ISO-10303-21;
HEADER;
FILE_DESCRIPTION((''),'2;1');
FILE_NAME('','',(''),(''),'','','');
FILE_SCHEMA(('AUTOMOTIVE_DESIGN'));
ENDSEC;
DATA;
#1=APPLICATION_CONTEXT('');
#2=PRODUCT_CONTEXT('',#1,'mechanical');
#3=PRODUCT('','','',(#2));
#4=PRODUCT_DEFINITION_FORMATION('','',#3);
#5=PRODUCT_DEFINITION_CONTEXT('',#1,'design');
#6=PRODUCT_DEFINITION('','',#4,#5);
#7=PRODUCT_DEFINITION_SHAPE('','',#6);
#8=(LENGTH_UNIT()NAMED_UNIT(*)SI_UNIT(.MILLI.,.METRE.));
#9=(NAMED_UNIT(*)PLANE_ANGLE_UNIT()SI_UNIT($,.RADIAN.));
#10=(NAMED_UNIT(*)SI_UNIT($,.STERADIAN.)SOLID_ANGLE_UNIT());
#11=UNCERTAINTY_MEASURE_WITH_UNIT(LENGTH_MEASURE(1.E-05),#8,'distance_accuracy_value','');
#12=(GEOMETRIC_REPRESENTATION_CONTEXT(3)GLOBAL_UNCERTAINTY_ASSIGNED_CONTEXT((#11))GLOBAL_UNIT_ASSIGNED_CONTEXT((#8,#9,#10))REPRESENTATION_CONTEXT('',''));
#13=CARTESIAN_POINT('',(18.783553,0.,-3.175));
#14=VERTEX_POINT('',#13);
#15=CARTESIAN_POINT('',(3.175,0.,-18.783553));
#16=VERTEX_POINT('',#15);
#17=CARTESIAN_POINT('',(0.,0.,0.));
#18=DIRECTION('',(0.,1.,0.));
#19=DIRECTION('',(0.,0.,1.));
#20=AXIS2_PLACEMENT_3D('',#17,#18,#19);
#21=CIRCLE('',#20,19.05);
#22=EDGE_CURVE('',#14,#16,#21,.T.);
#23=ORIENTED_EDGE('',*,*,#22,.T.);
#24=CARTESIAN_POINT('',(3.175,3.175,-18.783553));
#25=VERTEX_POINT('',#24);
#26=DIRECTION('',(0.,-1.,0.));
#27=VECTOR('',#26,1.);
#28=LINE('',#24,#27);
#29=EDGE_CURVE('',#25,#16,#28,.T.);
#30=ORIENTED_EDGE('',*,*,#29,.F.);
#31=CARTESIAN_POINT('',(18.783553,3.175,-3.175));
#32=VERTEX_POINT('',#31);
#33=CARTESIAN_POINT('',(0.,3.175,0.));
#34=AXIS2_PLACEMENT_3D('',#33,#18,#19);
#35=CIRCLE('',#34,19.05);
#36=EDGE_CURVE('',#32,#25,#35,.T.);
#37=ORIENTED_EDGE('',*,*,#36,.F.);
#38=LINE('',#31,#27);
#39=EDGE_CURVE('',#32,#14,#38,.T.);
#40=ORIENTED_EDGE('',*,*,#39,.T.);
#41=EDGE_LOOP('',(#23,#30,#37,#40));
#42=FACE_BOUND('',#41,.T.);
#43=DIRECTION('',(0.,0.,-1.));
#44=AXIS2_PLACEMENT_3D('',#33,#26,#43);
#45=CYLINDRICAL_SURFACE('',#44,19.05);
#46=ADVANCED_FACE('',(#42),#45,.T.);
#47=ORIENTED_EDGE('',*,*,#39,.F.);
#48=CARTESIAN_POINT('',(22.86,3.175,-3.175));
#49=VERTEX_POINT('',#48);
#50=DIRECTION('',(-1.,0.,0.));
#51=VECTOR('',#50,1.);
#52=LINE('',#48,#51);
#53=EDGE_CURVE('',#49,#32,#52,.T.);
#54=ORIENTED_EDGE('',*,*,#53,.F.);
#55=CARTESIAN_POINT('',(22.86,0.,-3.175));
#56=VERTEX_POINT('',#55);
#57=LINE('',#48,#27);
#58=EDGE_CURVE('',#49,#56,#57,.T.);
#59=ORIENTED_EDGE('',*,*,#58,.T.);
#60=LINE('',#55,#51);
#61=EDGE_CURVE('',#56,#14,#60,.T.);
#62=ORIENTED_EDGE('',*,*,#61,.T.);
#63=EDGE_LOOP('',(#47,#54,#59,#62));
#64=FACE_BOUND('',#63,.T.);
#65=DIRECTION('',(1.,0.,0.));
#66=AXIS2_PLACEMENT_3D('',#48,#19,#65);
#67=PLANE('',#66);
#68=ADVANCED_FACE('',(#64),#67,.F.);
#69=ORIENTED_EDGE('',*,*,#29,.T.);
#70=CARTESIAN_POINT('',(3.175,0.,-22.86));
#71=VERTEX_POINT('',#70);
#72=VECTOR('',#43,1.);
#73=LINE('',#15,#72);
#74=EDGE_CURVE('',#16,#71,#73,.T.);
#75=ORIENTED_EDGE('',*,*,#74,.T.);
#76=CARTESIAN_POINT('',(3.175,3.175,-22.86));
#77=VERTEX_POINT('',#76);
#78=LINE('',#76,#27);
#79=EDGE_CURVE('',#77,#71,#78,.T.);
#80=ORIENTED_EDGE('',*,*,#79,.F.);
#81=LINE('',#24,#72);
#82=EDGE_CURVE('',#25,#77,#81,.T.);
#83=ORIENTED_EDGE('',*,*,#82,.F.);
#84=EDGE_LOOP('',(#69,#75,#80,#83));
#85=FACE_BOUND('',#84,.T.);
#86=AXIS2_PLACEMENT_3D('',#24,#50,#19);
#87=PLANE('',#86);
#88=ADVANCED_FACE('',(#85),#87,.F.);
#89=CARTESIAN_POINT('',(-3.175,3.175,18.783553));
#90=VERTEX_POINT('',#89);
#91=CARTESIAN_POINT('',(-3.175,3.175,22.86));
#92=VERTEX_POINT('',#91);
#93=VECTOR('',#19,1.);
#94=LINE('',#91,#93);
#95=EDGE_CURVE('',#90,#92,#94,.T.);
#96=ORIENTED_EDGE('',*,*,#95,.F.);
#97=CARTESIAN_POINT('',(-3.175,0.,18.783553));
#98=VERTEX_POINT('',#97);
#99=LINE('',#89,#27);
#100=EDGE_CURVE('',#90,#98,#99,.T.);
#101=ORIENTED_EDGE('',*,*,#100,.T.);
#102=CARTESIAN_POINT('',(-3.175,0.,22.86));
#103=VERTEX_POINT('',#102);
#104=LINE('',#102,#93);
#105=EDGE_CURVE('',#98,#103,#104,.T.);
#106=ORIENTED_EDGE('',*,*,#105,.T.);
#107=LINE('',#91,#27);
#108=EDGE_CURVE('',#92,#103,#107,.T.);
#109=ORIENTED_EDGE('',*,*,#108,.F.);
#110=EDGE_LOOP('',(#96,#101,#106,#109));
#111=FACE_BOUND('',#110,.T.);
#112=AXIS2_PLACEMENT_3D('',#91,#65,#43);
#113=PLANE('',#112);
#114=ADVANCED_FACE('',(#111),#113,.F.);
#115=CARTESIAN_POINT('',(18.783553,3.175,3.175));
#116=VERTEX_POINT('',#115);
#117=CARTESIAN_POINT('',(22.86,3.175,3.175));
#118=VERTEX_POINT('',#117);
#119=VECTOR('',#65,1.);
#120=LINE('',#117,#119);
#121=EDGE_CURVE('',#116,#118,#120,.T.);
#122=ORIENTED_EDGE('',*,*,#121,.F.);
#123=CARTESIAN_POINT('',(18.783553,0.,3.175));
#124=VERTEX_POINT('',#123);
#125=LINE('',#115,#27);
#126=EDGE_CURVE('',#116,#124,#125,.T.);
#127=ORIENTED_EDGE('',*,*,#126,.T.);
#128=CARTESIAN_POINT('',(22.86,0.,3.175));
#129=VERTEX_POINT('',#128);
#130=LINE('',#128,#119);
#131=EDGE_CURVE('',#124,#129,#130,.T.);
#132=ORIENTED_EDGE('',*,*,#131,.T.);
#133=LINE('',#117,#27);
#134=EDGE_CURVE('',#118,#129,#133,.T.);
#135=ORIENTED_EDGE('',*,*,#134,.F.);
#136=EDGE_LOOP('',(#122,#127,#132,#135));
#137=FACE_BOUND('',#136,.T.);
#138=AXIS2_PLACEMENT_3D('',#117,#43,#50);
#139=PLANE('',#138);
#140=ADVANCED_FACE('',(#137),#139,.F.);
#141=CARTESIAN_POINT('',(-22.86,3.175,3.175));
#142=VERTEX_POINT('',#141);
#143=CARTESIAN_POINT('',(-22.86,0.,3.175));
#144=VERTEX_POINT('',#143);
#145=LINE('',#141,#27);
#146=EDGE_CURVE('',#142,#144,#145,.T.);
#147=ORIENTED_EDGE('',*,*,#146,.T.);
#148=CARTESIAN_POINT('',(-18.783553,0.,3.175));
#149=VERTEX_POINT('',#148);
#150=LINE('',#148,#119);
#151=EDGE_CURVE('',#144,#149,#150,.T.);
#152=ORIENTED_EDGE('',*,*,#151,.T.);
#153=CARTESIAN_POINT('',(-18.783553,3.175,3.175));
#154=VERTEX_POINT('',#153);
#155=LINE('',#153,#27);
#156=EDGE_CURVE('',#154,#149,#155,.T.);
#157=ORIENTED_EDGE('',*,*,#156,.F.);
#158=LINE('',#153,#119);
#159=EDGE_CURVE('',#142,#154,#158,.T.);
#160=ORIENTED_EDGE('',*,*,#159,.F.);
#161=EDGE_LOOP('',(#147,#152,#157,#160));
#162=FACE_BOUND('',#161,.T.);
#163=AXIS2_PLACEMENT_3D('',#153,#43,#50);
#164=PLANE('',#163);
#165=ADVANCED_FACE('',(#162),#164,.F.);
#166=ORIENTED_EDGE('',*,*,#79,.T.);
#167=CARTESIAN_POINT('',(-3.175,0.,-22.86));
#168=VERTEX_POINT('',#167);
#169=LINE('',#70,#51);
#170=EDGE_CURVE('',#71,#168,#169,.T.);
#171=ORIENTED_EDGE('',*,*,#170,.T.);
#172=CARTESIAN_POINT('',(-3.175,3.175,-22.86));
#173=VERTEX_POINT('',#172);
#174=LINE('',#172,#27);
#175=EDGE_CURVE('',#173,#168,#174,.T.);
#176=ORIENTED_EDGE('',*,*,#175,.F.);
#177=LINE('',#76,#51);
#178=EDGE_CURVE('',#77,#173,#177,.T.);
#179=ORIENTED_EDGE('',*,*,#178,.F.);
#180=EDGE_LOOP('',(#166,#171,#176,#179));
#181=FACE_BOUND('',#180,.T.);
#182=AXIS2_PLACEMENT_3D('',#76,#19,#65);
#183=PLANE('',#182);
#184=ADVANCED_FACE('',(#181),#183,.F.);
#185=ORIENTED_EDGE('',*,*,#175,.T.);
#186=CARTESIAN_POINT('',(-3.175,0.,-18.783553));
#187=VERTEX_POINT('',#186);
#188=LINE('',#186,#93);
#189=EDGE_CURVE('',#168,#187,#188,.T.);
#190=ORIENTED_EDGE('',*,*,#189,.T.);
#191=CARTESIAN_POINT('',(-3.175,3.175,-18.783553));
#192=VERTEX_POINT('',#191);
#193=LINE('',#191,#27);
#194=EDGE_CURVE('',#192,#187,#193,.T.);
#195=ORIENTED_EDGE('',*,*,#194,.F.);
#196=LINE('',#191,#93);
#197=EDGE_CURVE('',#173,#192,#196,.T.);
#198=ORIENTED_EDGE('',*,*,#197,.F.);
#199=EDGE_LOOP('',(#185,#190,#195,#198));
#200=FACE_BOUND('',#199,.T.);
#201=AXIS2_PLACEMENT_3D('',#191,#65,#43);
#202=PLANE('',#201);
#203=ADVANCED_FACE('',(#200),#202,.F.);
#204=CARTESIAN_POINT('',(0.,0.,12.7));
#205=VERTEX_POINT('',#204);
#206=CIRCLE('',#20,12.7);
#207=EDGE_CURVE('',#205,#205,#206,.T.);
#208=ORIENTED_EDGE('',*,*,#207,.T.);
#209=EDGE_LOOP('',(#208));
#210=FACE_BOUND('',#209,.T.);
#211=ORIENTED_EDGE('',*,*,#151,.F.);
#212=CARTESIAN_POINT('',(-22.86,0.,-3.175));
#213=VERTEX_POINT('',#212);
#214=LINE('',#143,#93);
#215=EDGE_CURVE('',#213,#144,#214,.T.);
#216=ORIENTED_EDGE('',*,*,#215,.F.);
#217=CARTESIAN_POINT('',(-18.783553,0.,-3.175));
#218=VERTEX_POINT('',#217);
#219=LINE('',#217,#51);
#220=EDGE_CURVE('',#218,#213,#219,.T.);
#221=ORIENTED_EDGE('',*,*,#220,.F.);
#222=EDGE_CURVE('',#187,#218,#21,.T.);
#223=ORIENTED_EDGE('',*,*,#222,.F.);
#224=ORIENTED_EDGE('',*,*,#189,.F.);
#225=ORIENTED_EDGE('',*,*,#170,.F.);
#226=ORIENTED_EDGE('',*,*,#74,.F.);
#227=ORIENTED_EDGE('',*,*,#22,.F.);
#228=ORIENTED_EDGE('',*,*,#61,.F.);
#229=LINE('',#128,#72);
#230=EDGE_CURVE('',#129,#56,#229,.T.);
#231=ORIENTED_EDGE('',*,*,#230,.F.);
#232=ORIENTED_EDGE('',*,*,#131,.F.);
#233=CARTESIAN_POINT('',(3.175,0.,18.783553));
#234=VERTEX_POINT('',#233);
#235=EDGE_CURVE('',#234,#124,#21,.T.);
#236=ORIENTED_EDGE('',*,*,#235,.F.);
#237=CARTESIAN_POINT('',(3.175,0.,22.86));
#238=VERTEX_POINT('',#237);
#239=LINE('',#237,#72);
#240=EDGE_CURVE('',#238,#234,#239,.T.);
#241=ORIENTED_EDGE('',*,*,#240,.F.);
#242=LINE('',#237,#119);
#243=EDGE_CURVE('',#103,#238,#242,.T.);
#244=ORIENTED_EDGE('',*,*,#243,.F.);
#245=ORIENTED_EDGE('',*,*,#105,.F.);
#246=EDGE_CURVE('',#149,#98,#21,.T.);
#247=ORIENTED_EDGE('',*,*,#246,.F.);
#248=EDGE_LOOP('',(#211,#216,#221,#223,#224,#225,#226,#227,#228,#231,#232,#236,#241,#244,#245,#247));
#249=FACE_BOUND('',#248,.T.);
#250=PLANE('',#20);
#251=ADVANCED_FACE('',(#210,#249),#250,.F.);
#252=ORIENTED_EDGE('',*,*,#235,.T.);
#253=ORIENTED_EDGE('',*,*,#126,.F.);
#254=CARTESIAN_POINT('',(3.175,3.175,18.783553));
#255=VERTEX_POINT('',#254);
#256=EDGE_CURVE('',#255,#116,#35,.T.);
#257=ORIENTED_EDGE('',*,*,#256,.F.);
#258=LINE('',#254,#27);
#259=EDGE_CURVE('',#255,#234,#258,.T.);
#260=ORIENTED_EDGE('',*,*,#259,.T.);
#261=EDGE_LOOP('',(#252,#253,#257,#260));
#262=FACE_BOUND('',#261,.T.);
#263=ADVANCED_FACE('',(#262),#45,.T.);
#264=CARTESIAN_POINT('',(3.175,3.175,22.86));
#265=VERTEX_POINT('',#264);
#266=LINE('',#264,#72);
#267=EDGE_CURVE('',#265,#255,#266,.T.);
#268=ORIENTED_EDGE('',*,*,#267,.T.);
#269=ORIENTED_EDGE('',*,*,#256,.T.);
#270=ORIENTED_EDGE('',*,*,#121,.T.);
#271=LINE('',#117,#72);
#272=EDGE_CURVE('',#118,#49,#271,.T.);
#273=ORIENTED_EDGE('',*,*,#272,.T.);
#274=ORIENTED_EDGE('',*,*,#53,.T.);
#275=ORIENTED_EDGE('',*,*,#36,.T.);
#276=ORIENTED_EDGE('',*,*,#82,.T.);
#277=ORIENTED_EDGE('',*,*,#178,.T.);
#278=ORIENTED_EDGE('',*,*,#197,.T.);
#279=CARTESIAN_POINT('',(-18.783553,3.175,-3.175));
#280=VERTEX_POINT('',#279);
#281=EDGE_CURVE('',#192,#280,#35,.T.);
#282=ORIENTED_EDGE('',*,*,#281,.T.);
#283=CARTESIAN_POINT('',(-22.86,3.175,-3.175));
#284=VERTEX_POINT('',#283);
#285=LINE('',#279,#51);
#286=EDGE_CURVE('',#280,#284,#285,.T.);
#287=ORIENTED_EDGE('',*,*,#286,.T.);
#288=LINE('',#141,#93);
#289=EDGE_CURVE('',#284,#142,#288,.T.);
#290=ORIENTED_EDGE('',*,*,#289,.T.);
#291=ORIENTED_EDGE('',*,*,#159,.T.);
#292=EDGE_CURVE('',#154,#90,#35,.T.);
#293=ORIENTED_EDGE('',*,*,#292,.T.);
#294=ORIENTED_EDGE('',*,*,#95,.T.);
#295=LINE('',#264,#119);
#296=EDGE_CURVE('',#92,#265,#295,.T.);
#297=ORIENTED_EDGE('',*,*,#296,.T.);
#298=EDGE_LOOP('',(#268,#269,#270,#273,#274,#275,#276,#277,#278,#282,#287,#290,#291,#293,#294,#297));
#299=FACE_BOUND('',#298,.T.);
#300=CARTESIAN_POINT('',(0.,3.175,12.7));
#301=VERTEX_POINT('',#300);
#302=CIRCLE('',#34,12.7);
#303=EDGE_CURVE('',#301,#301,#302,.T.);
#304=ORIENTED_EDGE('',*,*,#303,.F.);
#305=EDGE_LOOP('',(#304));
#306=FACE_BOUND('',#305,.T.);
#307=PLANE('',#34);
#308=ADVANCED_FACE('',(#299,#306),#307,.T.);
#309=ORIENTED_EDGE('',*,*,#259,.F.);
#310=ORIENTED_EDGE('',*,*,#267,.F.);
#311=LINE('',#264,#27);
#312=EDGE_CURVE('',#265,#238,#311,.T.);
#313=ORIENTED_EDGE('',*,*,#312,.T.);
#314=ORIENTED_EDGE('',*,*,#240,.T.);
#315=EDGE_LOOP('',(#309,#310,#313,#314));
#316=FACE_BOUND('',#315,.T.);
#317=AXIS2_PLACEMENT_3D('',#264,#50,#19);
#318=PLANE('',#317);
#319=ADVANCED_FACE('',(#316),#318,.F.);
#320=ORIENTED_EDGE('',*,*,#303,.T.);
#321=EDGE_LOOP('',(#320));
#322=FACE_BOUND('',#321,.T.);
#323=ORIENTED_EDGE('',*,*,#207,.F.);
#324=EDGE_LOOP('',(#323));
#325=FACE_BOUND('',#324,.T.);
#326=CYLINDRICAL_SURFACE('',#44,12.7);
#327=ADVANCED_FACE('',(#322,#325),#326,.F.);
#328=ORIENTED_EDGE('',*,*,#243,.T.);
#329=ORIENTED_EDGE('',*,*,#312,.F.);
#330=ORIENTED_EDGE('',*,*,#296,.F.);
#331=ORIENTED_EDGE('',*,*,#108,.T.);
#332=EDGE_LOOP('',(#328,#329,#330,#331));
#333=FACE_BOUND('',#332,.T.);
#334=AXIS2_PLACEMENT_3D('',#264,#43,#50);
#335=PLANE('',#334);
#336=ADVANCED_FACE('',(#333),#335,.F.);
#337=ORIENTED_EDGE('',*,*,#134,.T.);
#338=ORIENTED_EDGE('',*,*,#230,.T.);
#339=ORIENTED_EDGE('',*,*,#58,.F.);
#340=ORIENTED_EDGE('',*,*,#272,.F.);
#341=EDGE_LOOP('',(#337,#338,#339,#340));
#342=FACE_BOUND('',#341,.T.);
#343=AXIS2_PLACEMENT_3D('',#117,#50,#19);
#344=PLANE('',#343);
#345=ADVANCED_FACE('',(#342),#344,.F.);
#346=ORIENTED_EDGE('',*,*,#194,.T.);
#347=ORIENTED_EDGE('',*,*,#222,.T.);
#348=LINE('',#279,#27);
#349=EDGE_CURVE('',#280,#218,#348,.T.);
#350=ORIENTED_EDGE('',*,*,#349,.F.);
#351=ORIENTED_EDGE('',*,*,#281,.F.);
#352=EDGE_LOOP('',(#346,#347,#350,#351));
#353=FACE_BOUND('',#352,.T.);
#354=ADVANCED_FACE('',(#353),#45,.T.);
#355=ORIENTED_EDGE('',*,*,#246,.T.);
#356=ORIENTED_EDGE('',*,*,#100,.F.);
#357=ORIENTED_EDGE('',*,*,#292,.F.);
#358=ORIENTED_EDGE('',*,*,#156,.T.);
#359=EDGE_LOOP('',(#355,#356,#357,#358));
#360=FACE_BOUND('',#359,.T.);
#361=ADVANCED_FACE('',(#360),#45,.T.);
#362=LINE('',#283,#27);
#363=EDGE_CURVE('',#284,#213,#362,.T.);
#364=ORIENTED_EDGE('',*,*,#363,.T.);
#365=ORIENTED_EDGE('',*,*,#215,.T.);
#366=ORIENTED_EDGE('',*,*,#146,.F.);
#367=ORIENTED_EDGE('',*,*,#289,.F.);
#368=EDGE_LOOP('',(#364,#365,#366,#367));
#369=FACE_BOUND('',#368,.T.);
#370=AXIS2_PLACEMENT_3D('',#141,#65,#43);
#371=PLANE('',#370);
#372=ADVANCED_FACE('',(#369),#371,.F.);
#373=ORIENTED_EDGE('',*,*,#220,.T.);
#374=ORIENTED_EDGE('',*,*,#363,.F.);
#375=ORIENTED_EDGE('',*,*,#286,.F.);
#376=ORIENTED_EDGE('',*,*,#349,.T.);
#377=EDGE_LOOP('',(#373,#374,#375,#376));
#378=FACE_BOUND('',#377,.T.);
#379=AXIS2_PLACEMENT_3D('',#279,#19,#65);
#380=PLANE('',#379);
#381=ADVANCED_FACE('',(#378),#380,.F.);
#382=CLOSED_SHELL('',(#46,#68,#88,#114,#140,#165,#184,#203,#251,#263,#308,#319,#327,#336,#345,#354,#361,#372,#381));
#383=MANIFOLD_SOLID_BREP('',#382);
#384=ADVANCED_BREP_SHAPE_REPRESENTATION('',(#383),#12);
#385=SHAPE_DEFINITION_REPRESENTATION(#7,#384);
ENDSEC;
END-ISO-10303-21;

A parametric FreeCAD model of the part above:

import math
import FreeCAD as App
import Part
import Sketcher

V = App.Vector
Q = App.Units.Quantity

doc = App.newDocument("Part")
body = doc.addObject("PartDesign::Body", "Body")

# Sketch on XZ plane
sketch1 = body.newObject("Sketcher::SketchObject", "Sketch")
sketch1.AttachmentSupport = (doc.getObject("XZ_Plane"), [""])
sketch1.MapMode = "FlatFace"
sketch1.addGeometry(Part.LineSegment(V(-22.86, 3.175, 0), V(-18.783553, 3.175, 0)), False)
sketch1.addGeometry(Part.ArcOfCircle(Part.Circle(V(0, 0, 0), V(0, 0, 1), 19.05), math.radians(99.594068), math.radians(170.405932)), False)
sketch1.addGeometry(Part.LineSegment(V(-3.175, 18.783553, 0), V(-3.175, 22.86, 0)), False)
sketch1.addGeometry(Part.LineSegment(V(-3.175, 22.86, 0), V(3.175, 22.86, 0)), False)
sketch1.addGeometry(Part.LineSegment(V(3.175, 22.86, 0), V(3.175, 18.783553, 0)), False)
sketch1.addGeometry(Part.ArcOfCircle(Part.Circle(V(0, 0, 0), V(0, 0, 1), 19.05), math.radians(9.594068), math.radians(80.405932)), False)
sketch1.addGeometry(Part.LineSegment(V(18.783553, 3.175, 0), V(22.86, 3.175, 0)), False)
sketch1.addGeometry(Part.LineSegment(V(22.86, 3.175, 0), V(22.86, -3.175, 0)), False)
sketch1.addGeometry(Part.LineSegment(V(22.86, -3.175, 0), V(18.783553, -3.175, 0)), False)
sketch1.addGeometry(Part.ArcOfCircle(Part.Circle(V(0, 0, 0), V(0, 0, 1), 19.05), math.radians(-80.405932), math.radians(-9.594068)), False)
sketch1.addGeometry(Part.LineSegment(V(3.175, -18.783553, 0), V(3.175, -22.86, 0)), False)
sketch1.addGeometry(Part.LineSegment(V(3.175, -22.86, 0), V(-3.175, -22.86, 0)), False)
sketch1.addGeometry(Part.LineSegment(V(-3.175, -22.86, 0), V(-3.175, -18.783553, 0)), False)
sketch1.addGeometry(Part.ArcOfCircle(Part.Circle(V(0, 0, 0), V(0, 0, 1), 19.05), math.radians(-170.405932), math.radians(-99.594068)), False)
sketch1.addGeometry(Part.LineSegment(V(-18.783553, -3.175, 0), V(-22.86, -3.175, 0)), False)
sketch1.addGeometry(Part.LineSegment(V(-22.86, -3.175, 0), V(-22.86, 3.175, 0)), False)
sketch1.addGeometry(Part.Circle(V(0, 0, 0), V(0, 0, 1), 12.7), False)
sketch1.addConstraint(Sketcher.Constraint("Coincident", 0, 2, 1, 2))
sketch1.addConstraint(Sketcher.Constraint("Coincident", 1, 1, 2, 1))
sketch1.addConstraint(Sketcher.Constraint("Coincident", 2, 2, 3, 1))
sketch1.addConstraint(Sketcher.Constraint("Coincident", 3, 2, 4, 1))
sketch1.addConstraint(Sketcher.Constraint("Coincident", 4, 2, 5, 2))
sketch1.addConstraint(Sketcher.Constraint("Coincident", 5, 1, 6, 1))
sketch1.addConstraint(Sketcher.Constraint("Coincident", 6, 2, 7, 1))
sketch1.addConstraint(Sketcher.Constraint("Coincident", 7, 2, 8, 1))
sketch1.addConstraint(Sketcher.Constraint("Coincident", 8, 2, 9, 2))
sketch1.addConstraint(Sketcher.Constraint("Coincident", 9, 1, 10, 1))
sketch1.addConstraint(Sketcher.Constraint("Coincident", 10, 2, 11, 1))
sketch1.addConstraint(Sketcher.Constraint("Coincident", 11, 2, 12, 1))
sketch1.addConstraint(Sketcher.Constraint("Coincident", 12, 2, 13, 2))
sketch1.addConstraint(Sketcher.Constraint("Coincident", 13, 1, 14, 1))
sketch1.addConstraint(Sketcher.Constraint("Coincident", 14, 2, 15, 1))
sketch1.addConstraint(Sketcher.Constraint("Coincident", 15, 2, 0, 1))
sketch1.addConstraint(Sketcher.Constraint("Horizontal", 0))
sketch1.addConstraint(Sketcher.Constraint("Vertical", 2))
sketch1.addConstraint(Sketcher.Constraint("Horizontal", 3))
sketch1.addConstraint(Sketcher.Constraint("Vertical", 4))
sketch1.addConstraint(Sketcher.Constraint("Horizontal", 6))
sketch1.addConstraint(Sketcher.Constraint("Vertical", 7))
sketch1.addConstraint(Sketcher.Constraint("Horizontal", 8))
sketch1.addConstraint(Sketcher.Constraint("Vertical", 10))
sketch1.addConstraint(Sketcher.Constraint("Horizontal", 11))
sketch1.addConstraint(Sketcher.Constraint("Vertical", 12))
sketch1.addConstraint(Sketcher.Constraint("Horizontal", 14))
sketch1.addConstraint(Sketcher.Constraint("Vertical", 15))
sketch1.addConstraint(Sketcher.Constraint("Coincident", 1, 3, -1, 1))
sketch1.addConstraint(Sketcher.Constraint("Coincident", 5, 3, -1, 1))
sketch1.addConstraint(Sketcher.Constraint("Coincident", 9, 3, -1, 1))
sketch1.addConstraint(Sketcher.Constraint("Coincident", 13, 3, -1, 1))
sketch1.addConstraint(Sketcher.Constraint("Coincident", 16, 3, -1, 1))
sketch1.addConstraint(Sketcher.Constraint("Equal", 1, 5))
sketch1.addConstraint(Sketcher.Constraint("Equal", 5, 9))
sketch1.addConstraint(Sketcher.Constraint("Equal", 9, 13))
sketch1.addConstraint(Sketcher.Constraint("Symmetric", 2, 2, 10, 2, -1, 1))
sketch1.addConstraint(Sketcher.Constraint("Symmetric", 6, 2, 14, 2, -1, 1))
sketch1.addConstraint(Sketcher.Constraint("Horizontal", 1, 1, 4, 2))
sketch1.addConstraint(Sketcher.Constraint("Horizontal", 0, 2, 5, 1))
sketch1.addConstraint(Sketcher.Constraint("Horizontal", 9, 1, 12, 2))
sketch1.addConstraint(Sketcher.Constraint("Horizontal", 8, 2, 13, 1))
sketch1.addConstraint(Sketcher.Constraint("Equal", 14, 2))
sketch1.addConstraint(Sketcher.Constraint("Equal", 11, 7))
sketch1.addConstraint(Sketcher.Constraint("Diameter", 16, Q("1 in")))
sketch1.addConstraint(Sketcher.Constraint("Radius", 1, Q("0.75 in")))
sketch1.addConstraint(Sketcher.Constraint("DistanceX", 3, 1, 3, 2, Q("0.25 in")))
sketch1.addConstraint(Sketcher.Constraint("DistanceY", -1, 1, 2, 2, Q("0.9 in")))
pad1 = body.newObject("PartDesign::Pad", "Pad")
pad1.Profile = sketch1
pad1.Length = Q("0.125 in")
pad1.Reversed = True

doc.recompute()
